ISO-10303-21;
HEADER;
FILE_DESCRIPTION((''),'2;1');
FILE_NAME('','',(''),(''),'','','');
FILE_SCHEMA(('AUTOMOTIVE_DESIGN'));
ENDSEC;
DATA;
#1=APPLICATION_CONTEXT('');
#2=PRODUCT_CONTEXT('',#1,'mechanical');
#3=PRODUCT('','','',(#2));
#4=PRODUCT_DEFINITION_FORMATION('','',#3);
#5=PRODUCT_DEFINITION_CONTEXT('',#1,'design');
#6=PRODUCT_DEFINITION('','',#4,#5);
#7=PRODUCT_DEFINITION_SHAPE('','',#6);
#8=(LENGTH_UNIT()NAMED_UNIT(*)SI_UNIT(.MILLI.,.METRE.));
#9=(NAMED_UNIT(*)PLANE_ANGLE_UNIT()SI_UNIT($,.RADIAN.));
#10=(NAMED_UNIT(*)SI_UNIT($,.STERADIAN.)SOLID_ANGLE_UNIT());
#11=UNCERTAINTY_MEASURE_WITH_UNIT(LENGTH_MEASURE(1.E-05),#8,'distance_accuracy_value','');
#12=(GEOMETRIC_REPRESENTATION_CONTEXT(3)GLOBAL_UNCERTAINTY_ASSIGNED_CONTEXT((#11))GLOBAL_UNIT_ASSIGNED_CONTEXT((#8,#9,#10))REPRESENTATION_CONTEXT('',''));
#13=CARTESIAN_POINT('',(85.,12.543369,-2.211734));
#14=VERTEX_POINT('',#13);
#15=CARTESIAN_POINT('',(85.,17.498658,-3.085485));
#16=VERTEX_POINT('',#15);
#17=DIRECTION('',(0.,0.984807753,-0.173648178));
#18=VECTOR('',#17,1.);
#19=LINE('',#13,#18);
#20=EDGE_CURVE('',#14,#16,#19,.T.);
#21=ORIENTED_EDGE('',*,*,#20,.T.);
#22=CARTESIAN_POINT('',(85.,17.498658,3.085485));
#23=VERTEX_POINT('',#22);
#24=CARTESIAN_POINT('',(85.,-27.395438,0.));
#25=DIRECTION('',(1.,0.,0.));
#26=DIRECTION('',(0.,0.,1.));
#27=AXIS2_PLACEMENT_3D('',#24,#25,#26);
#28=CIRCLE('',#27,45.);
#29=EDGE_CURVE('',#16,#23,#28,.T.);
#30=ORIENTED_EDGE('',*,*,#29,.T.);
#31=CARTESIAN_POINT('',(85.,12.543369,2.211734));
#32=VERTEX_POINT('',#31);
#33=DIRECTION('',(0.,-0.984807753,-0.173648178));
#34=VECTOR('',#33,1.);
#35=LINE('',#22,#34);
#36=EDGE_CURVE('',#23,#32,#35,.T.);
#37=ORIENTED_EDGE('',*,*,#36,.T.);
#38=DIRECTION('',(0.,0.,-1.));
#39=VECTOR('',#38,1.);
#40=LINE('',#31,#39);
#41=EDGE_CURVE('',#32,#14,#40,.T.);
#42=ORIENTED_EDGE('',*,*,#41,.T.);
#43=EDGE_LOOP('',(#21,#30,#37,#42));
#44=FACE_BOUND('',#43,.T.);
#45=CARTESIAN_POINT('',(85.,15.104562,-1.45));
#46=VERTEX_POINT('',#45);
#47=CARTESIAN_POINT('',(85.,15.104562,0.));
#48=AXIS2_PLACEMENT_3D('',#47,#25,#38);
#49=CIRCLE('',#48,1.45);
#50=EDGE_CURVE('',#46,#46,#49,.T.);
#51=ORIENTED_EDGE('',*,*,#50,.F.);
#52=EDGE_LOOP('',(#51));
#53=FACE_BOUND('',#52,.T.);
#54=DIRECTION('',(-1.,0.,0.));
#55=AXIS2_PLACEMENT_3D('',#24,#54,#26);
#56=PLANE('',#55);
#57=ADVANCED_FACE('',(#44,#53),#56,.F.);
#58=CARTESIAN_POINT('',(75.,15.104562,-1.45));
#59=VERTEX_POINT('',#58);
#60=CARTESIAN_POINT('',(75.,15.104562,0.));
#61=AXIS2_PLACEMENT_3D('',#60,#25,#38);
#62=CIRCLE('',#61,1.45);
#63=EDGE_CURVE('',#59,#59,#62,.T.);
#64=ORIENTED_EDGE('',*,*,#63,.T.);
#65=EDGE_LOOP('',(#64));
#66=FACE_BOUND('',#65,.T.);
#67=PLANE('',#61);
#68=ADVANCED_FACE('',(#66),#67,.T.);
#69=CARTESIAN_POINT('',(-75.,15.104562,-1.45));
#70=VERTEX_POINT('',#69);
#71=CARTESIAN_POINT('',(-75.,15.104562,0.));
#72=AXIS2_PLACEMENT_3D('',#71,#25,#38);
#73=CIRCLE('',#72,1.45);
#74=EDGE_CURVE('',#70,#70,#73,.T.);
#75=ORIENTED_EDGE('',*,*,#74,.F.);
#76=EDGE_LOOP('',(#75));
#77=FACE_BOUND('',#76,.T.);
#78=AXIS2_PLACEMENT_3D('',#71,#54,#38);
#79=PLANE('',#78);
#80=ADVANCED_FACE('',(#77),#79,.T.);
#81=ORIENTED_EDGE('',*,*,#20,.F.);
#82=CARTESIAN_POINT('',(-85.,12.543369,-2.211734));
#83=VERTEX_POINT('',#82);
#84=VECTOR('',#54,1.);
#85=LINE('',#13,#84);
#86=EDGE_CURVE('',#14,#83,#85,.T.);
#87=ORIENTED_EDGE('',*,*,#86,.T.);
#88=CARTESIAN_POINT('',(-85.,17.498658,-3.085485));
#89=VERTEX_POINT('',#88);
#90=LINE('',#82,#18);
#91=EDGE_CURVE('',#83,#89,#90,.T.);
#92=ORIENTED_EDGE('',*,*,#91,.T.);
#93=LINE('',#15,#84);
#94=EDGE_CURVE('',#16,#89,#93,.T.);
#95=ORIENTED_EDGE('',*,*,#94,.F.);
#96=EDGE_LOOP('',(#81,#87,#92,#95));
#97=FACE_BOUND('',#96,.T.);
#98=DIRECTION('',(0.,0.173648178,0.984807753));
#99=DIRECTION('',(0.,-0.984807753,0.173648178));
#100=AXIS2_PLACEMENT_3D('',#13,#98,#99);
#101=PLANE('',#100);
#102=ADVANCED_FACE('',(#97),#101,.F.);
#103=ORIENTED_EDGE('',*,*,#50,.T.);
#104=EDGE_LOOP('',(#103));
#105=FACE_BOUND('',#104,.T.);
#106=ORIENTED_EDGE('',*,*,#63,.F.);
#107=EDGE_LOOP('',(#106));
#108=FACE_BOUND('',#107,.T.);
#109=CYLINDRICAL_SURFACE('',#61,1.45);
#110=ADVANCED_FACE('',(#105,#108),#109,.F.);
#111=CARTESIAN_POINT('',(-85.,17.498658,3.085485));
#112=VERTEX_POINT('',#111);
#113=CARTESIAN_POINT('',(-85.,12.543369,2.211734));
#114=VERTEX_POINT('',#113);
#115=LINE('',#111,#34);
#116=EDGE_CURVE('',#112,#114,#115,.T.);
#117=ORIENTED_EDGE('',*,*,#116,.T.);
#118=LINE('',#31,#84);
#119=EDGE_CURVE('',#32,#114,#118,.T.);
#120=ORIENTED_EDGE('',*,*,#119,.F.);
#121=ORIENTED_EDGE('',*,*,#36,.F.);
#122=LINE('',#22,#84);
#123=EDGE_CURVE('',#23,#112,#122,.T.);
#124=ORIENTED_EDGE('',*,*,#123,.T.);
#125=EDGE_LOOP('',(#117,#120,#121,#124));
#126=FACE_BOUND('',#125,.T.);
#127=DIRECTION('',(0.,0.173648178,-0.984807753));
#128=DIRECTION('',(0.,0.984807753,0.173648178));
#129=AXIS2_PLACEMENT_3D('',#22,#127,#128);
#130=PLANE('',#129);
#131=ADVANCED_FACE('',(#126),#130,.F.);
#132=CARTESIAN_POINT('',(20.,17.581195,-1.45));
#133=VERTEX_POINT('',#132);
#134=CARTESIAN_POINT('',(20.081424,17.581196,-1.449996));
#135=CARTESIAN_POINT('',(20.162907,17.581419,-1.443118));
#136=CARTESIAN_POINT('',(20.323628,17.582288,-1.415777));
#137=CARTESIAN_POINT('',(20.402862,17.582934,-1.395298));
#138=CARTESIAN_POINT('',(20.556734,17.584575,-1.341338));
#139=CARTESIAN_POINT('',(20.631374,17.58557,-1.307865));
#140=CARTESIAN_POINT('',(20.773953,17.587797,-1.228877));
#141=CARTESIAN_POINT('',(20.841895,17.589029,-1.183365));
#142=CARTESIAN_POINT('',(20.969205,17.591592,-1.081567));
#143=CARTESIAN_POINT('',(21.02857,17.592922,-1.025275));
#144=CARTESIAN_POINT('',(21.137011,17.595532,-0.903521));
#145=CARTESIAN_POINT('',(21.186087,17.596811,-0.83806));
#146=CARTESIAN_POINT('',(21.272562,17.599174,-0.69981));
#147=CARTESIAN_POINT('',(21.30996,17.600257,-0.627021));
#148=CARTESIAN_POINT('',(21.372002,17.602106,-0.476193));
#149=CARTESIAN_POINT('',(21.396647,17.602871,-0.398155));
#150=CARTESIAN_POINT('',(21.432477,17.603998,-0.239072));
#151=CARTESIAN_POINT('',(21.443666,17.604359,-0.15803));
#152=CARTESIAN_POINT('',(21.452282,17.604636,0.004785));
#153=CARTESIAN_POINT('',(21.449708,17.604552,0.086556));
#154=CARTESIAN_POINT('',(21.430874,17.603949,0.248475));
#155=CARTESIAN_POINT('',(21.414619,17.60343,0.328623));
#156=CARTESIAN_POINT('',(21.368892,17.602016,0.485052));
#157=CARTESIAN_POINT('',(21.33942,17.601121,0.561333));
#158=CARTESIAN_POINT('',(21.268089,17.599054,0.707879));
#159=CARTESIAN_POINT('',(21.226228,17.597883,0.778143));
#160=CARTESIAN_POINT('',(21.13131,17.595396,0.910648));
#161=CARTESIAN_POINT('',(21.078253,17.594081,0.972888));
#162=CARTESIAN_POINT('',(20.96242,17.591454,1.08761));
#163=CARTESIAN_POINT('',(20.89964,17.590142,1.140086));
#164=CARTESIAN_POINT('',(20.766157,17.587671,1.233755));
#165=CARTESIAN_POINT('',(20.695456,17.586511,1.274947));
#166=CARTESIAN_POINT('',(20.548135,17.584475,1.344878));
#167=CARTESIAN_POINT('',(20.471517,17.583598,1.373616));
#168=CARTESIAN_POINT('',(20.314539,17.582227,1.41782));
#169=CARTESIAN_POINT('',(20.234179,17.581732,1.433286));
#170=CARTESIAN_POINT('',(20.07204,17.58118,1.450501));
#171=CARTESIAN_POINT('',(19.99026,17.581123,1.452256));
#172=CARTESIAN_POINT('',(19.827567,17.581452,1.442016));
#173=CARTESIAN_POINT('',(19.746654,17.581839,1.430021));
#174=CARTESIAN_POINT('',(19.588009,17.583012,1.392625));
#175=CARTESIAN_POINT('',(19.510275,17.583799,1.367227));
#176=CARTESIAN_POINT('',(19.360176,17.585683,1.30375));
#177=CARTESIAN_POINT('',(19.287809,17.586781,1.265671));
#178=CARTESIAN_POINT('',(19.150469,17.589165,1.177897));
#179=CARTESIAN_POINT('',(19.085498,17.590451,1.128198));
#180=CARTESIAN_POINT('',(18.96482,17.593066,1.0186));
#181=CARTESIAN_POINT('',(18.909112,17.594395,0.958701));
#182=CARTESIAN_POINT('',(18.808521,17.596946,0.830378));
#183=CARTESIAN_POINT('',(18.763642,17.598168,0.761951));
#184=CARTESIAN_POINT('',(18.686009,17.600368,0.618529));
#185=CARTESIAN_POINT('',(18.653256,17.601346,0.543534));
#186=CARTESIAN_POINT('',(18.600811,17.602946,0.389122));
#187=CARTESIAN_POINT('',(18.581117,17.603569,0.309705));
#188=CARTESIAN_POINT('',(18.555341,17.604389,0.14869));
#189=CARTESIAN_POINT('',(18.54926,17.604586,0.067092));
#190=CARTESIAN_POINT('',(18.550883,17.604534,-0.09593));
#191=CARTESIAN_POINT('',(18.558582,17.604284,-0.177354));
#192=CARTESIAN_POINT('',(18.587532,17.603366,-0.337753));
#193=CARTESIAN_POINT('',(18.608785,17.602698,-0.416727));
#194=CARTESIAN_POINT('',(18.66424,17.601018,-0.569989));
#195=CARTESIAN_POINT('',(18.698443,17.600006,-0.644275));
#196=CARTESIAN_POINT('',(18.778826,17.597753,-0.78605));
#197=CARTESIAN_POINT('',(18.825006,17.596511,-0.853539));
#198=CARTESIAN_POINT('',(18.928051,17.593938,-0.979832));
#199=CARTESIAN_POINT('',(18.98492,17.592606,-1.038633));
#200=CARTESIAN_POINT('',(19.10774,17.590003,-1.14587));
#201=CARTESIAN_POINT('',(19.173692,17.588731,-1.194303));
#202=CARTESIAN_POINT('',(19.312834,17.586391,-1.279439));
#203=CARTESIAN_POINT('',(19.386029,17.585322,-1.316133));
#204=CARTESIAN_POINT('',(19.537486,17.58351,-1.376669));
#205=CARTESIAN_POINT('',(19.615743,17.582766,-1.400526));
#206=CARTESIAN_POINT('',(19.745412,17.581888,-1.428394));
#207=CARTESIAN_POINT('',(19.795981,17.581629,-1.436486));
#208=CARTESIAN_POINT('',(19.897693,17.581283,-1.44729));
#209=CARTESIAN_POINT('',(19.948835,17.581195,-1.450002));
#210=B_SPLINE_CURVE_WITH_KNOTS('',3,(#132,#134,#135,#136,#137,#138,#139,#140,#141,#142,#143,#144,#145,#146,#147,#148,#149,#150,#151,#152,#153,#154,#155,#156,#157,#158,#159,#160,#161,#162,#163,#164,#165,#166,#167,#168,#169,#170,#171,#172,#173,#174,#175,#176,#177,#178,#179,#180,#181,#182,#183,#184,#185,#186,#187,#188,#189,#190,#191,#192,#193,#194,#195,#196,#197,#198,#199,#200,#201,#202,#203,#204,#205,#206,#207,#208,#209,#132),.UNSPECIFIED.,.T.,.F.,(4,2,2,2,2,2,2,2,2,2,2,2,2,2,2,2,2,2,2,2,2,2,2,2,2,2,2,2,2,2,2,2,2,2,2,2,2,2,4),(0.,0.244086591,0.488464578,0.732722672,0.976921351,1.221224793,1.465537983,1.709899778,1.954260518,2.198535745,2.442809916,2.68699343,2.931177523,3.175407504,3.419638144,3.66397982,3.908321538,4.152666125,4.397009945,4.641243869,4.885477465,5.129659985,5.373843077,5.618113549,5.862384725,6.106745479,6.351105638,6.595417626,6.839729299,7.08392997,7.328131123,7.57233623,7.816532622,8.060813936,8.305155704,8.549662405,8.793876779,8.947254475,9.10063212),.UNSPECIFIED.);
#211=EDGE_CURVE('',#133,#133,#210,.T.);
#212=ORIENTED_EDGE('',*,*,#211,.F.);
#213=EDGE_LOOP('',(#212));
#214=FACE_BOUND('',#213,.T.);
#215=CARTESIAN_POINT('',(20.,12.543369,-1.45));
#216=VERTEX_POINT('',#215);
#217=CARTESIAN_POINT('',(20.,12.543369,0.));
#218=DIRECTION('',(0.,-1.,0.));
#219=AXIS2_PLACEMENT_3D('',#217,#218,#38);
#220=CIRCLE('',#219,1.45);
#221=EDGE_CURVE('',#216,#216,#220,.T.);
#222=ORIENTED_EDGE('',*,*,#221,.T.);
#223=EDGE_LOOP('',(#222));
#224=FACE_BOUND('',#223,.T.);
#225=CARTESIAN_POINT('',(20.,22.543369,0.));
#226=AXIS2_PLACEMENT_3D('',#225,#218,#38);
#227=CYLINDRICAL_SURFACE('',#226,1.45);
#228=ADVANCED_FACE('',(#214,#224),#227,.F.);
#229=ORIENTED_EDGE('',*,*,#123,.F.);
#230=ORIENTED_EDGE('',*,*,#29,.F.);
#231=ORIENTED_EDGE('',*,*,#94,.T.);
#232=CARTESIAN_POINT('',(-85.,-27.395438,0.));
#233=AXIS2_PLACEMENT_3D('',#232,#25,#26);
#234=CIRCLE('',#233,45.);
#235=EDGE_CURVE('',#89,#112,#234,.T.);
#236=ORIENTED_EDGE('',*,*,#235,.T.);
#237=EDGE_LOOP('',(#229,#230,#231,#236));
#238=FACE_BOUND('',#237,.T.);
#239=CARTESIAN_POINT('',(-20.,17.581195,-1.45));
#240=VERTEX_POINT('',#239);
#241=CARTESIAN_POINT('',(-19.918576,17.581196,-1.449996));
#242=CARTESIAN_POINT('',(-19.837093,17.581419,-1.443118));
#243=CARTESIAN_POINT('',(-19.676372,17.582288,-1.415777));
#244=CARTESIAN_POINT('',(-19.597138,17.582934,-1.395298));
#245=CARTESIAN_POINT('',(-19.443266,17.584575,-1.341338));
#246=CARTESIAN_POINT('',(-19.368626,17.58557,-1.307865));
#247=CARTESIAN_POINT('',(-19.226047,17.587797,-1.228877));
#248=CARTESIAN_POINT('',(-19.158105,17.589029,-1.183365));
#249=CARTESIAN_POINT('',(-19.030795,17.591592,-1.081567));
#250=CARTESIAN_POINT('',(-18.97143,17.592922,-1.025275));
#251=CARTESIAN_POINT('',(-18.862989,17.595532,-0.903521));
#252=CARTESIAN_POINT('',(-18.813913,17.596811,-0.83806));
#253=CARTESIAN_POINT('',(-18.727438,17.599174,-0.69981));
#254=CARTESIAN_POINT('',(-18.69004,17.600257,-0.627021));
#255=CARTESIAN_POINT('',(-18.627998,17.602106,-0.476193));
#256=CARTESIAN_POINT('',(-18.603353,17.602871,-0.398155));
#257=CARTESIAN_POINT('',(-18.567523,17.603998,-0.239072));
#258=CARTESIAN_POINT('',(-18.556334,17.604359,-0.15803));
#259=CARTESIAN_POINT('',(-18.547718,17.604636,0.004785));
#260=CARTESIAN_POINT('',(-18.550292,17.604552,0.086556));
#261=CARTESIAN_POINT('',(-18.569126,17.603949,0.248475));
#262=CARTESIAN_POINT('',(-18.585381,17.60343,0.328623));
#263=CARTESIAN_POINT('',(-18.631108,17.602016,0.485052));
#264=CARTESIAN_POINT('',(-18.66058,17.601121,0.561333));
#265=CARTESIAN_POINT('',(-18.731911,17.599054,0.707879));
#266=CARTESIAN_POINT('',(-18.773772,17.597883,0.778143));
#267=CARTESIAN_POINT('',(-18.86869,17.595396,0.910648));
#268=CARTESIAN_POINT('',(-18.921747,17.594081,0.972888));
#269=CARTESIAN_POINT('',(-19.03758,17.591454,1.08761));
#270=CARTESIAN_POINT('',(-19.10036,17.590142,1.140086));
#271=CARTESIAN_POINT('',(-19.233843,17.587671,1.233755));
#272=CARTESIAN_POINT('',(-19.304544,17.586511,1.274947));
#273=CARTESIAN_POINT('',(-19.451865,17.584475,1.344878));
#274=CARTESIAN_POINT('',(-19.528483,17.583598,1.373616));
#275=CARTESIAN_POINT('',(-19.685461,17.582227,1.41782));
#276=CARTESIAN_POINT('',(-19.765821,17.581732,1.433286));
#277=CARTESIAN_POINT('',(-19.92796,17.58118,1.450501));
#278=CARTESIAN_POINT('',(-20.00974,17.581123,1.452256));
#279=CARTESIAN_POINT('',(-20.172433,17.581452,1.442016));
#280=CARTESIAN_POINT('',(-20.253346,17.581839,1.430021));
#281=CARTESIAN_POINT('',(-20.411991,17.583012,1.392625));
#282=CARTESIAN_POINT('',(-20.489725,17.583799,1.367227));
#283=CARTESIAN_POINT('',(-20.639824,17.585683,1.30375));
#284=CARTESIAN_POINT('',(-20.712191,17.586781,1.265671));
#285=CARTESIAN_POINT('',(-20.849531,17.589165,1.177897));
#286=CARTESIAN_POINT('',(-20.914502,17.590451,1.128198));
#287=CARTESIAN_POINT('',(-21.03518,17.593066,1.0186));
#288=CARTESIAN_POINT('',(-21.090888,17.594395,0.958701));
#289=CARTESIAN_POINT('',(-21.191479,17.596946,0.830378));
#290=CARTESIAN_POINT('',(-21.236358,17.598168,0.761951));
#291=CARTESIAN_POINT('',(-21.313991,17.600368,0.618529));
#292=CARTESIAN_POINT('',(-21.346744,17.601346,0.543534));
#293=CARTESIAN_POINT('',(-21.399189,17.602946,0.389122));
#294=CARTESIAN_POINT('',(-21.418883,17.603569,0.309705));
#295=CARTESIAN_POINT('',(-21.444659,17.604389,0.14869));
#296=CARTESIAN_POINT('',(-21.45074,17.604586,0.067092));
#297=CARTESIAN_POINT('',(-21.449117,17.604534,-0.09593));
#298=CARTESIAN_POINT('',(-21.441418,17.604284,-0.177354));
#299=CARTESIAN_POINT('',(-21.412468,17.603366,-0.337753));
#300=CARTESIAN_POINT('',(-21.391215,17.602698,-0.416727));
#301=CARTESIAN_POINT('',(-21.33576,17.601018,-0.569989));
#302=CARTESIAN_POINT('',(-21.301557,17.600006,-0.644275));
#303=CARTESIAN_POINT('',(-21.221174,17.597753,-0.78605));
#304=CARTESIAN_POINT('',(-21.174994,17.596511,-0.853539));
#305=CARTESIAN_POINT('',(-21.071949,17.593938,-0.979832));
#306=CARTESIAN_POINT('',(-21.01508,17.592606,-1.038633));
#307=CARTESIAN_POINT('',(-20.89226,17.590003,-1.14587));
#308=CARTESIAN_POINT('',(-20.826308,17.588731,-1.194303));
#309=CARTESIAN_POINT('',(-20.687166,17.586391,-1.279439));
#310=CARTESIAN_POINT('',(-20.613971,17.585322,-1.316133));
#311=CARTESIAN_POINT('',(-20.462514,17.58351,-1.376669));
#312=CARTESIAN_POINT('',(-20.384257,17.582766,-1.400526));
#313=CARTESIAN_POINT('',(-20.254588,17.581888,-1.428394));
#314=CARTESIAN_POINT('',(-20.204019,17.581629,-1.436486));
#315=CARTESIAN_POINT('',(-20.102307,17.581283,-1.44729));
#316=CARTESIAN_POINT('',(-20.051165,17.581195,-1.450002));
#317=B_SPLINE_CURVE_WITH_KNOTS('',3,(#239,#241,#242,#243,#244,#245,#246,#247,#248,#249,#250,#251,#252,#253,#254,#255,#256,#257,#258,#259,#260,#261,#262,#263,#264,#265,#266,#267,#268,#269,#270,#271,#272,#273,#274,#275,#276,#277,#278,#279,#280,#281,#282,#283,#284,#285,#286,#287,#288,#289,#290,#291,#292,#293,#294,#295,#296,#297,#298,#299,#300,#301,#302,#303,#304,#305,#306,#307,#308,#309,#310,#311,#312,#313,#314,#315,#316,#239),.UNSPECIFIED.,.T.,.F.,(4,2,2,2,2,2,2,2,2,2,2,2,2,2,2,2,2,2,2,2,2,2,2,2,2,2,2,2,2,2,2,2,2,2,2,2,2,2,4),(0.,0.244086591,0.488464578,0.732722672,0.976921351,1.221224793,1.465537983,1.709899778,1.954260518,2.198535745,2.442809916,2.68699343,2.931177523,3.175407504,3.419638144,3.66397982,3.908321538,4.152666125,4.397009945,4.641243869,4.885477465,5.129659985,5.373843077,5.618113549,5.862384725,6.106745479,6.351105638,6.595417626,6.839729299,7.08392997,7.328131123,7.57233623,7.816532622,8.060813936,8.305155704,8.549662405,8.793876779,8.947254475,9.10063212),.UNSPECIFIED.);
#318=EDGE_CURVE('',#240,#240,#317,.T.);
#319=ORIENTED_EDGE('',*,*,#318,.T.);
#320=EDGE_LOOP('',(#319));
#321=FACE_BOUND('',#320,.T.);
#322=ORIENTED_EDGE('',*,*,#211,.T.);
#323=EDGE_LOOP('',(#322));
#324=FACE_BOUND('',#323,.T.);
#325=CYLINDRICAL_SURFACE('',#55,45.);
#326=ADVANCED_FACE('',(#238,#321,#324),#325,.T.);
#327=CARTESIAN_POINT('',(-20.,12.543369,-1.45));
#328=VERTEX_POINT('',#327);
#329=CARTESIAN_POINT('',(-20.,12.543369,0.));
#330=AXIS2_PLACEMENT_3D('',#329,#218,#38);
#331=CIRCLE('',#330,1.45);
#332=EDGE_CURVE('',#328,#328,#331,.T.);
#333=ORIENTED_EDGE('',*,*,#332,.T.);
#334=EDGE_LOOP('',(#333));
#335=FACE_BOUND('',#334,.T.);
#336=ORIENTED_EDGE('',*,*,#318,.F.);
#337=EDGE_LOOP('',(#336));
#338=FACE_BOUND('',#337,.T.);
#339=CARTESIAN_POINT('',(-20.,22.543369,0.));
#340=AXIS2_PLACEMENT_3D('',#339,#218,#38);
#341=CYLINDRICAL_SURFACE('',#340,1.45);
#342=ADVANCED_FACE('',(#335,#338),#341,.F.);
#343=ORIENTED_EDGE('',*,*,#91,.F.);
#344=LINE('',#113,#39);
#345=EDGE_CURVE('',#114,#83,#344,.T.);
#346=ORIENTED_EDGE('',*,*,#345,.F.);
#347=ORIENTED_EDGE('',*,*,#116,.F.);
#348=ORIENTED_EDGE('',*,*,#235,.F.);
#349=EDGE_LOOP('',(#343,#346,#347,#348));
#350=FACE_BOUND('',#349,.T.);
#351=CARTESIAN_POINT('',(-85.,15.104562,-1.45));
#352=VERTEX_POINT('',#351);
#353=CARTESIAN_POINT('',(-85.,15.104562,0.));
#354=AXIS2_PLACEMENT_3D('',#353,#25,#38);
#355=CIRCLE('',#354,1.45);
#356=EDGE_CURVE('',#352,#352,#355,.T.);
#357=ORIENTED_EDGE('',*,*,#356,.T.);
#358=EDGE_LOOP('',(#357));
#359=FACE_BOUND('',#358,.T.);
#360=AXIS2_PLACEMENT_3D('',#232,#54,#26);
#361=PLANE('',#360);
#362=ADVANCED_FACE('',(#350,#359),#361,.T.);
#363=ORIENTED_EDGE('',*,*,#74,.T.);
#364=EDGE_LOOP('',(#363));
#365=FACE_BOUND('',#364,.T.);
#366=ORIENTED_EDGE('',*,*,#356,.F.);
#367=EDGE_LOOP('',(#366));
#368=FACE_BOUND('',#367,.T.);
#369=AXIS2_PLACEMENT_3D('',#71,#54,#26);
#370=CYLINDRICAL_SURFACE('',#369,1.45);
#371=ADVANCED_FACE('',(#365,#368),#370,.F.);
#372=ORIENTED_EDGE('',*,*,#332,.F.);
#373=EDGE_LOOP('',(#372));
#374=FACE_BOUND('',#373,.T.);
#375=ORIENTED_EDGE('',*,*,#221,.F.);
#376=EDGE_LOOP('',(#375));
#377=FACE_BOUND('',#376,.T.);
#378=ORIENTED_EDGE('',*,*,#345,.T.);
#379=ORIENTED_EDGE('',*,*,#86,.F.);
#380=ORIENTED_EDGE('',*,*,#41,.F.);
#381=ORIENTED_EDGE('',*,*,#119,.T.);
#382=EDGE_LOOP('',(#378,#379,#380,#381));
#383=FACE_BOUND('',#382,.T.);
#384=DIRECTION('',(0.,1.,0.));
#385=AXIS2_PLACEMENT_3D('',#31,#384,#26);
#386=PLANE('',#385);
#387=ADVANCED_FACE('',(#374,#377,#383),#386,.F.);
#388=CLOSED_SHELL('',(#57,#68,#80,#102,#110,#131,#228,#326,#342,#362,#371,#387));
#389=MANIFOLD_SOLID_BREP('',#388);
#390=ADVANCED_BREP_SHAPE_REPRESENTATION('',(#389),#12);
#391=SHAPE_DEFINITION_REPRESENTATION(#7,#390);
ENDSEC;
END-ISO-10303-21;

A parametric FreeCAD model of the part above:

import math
import FreeCAD as App
import Part
import Sketcher
from FreeCAD import Vector
Q = App.Units.Quantity

doc = App.newDocument("Part")
body = doc.addObject("PartDesign::Body", "Body")

# Sketch on YZ plane
sketch1 = body.newObject("Sketcher::SketchObject", "Sketch")
sketch1.AttachmentSupport = (doc.getObject("YZ_Plane"), [""])
sketch1.MapMode = "FlatFace"
sketch1.addGeometry(Part.LineSegment(Vector(17.5, 3.1, 0), Vector(12.5, 2.2, 0)), False)
sketch1.addGeometry(Part.LineSegment(Vector(12.5, 2.2, 0), Vector(12.5, -2.2, 0)), False)
sketch1.addGeometry(Part.LineSegment(Vector(12.5, -2.2, 0), Vector(17.5, -3.1, 0)), False)
sketch1.addGeometry(Part.ArcOfCircle(Part.Circle(Vector(-27.4, 0, 0), Vector(0, 0, 1), 45), math.radians(-3.93), math.radians(3.93)), False)
sketch1.addConstraint(Sketcher.Constraint("Coincident", 0, 2, 1, 1))
sketch1.addConstraint(Sketcher.Constraint("Coincident", 1, 2, 2, 1))
sketch1.addConstraint(Sketcher.Constraint("Coincident", 2, 2, 3, 1))
sketch1.addConstraint(Sketcher.Constraint("Coincident", 3, 2, 0, 1))
sketch1.addConstraint(Sketcher.Constraint("Vertical", 1))
sketch1.addConstraint(Sketcher.Constraint("Symmetric", 2, 2, 3, 2, -1))
sketch1.addConstraint(Sketcher.Constraint("Equal", 0, 2))
sketch1.addConstraint(Sketcher.Constraint("Radius", 3, 45.0))
sketch1.addConstraint(Sketcher.Constraint("Angle", 0, Q("-170 deg")))
sketch1.addConstraint(Sketcher.Constraint("DistanceY", 1, 2, 1, 1, 4.423469))
sketch1.addConstraint(Sketcher.Constraint("DistanceX", -1, 1, 0, 2, 12.543369))
sketch1.addConstraint(Sketcher.Constraint("DistanceX", 1, 2, 2, 2, 4.955289))
pad1 = body.newObject("PartDesign::Pad", "Pad")
pad1.Profile = sketch1
pad1.Length = 170
pad1.Midplane = True

# Sketch on YZ plane
sketch2 = body.newObject("Sketcher::SketchObject", "Sketch001")
sketch2.AttachmentSupport = (doc.getObject("YZ_Plane"), [""])
sketch2.MapMode = "FlatFace"
sketch2.AttachmentOffset = App.Placement(Vector(0, 0, 85), App.Rotation())
sketch2.addGeometry(Part.Circle(Vector(15.1, 0, 0), Vector(0, 0, 1), 1.4), False)
sketch2.addConstraint(Sketcher.Constraint("PointOnObject", 0, 3, -1))
sketch2.addConstraint(Sketcher.Constraint("Diameter", 0, 2.9))
sketch2.addConstraint(Sketcher.Constraint("DistanceX", -1, 1, 0, 3, 15.104562))
pocket1 = body.newObject("PartDesign::Pocket", "Pocket")
pocket1.Profile = sketch2
pocket1.Length = 10
doc.recompute()

mirrored = body.newObject("PartDesign::Mirrored", "Mirrored")
mirrored.Originals = [pocket1]
mirrored.MirrorPlane = (doc.getObject("YZ_Plane"), [""])
body.Tip = mirrored

# Sketch on XZ plane
sketch3 = body.newObject("Sketcher::SketchObject", "Sketch002")
sketch3.AttachmentSupport = (doc.getObject("XZ_Plane"), [""])
sketch3.MapMode = "FlatFace"
sketch3.AttachmentOffset = App.Placement(Vector(0, 0, -12.543369), App.Rotation())
sketch3.addGeometry(Part.Circle(Vector(-20, 0, 0), Vector(0, 0, 1), 1.4), False)
sketch3.addGeometry(Part.Circle(Vector(20, 0, 0), Vector(0, 0, 1), 1.4), False)
sketch3.addConstraint(Sketcher.Constraint("Equal", 0, 1))
sketch3.addConstraint(Sketcher.Constraint("Symmetric", 0, 3, 1, 3, -1, 1))
sketch3.addConstraint(Sketcher.Constraint("PointOnObject", 0, 3, -1))
sketch3.addConstraint(Sketcher.Constraint("Diameter", 0, 2.9))
sketch3.addConstraint(Sketcher.Constraint("DistanceX", 0, 3, -1, 1, 20.0))
pocket2 = body.newObject("PartDesign::Pocket", "Pocket001")
pocket2.Profile = sketch3
pocket2.Length = 10

doc.recompute()
